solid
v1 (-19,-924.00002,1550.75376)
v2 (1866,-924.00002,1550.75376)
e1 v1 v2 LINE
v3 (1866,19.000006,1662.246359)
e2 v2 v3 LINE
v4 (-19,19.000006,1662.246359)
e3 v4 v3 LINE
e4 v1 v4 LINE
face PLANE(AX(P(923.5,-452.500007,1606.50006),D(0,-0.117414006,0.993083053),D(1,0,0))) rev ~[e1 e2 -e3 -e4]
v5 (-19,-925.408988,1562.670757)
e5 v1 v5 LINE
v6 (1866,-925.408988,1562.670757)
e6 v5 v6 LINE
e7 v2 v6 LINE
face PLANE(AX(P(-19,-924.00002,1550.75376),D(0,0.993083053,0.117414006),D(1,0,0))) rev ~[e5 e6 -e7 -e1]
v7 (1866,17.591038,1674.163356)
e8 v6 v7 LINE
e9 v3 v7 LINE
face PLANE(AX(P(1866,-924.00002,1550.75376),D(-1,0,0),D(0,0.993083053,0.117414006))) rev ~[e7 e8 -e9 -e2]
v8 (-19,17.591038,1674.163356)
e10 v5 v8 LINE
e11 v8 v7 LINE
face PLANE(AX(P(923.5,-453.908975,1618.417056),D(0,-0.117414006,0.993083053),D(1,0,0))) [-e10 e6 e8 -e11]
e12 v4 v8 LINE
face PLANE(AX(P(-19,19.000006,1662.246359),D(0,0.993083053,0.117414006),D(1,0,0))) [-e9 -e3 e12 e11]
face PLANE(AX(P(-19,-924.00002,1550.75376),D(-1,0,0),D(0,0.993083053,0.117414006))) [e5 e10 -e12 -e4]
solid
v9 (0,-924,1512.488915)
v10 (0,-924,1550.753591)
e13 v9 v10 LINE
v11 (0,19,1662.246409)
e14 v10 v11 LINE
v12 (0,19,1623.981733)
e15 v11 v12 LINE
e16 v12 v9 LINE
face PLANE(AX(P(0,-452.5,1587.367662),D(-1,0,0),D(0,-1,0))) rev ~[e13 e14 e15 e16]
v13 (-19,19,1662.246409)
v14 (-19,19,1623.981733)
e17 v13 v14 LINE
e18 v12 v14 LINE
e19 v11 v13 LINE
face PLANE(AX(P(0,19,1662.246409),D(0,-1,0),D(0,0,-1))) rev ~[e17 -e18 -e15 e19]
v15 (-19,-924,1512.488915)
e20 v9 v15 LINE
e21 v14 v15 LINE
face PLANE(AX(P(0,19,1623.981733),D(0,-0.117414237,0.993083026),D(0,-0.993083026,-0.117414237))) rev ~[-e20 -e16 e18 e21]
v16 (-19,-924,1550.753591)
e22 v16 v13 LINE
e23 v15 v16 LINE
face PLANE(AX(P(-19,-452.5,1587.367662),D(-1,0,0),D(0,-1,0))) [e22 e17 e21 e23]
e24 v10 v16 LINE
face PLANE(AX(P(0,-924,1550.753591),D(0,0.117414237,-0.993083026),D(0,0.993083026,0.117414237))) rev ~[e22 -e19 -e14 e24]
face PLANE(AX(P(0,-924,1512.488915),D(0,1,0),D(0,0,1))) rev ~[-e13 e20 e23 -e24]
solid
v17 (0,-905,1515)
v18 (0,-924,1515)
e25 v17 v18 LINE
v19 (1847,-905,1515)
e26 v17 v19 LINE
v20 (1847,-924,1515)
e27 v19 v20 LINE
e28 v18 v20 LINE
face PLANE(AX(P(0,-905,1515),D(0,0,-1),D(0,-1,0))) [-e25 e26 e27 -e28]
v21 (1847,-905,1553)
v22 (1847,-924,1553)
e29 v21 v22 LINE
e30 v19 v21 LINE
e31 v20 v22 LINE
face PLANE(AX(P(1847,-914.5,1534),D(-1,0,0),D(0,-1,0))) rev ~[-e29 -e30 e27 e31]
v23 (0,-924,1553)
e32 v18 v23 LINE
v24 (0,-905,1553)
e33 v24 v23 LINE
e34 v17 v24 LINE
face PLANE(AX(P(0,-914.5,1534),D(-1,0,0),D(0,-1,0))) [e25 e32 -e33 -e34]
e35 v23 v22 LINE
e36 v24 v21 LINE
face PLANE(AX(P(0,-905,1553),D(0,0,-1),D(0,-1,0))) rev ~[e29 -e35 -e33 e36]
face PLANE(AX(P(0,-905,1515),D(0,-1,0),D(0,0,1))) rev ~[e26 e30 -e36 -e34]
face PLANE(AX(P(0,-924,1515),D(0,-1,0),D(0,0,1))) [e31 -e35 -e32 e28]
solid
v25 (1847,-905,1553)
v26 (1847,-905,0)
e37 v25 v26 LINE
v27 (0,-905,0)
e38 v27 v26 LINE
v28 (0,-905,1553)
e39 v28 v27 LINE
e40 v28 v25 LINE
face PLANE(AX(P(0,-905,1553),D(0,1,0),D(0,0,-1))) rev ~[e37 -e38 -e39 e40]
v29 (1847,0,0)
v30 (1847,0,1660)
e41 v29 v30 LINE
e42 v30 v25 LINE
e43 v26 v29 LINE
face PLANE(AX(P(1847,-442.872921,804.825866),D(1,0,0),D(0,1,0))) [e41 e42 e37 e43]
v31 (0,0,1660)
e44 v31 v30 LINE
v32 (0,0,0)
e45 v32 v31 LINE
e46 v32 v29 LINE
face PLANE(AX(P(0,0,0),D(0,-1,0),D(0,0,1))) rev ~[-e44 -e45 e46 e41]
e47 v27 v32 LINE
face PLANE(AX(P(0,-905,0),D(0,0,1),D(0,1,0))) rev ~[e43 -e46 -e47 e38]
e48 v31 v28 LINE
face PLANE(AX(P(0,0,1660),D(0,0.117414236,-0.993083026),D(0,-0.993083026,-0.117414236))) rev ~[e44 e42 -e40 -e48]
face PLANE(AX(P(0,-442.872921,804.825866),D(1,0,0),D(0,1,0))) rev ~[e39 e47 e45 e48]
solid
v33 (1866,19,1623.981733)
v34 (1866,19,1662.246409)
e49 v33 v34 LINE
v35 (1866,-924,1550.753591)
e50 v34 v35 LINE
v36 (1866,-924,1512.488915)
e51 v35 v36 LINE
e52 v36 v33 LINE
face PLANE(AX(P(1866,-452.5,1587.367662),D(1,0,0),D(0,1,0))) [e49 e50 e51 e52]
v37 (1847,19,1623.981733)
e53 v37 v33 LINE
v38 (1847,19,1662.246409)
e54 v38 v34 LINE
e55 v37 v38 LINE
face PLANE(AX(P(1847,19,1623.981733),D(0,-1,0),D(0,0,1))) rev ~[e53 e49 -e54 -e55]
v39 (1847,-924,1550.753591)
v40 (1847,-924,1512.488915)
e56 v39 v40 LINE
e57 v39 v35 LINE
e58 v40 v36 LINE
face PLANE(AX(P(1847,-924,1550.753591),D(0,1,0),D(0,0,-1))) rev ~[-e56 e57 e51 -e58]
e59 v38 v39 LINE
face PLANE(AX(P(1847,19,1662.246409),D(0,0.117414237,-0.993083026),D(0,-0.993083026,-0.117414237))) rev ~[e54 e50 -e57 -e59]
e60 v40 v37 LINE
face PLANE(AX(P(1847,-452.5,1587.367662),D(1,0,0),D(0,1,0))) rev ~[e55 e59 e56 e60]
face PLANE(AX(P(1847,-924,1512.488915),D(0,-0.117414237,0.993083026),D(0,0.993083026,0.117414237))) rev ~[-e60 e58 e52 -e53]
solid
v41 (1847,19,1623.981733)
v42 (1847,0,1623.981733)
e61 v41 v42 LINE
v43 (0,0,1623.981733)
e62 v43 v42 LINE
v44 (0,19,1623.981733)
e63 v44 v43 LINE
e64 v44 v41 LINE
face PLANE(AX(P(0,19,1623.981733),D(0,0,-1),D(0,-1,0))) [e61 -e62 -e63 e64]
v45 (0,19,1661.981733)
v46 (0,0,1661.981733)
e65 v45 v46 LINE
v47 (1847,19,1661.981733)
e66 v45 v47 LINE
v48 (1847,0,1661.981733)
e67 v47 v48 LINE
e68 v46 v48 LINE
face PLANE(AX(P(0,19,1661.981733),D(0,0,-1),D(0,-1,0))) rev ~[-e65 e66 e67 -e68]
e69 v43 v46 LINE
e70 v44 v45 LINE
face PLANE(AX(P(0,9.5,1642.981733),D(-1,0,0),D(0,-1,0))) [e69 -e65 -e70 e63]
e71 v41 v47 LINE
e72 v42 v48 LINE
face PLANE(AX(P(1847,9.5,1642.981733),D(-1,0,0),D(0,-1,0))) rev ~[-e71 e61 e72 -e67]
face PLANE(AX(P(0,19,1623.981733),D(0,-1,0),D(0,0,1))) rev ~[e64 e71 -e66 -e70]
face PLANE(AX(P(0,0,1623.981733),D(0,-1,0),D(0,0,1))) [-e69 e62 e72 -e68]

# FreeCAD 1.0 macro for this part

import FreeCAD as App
import Part
import Sketcher
from FreeCAD import Vector


def add_polygon(sketch, points):
    """Adds a closed chain of lines whose ends are joined by coincident constraints."""
    first, n = sketch.GeometryCount, len(points)
    for a, b in zip(points, points[1:] + points[:1]):
        sketch.addGeometry(Part.LineSegment(App.Vector(*a, 0), App.Vector(*b, 0)), False)
    for i in range(n):
        sketch.addConstraint(Sketcher.Constraint("Coincident", first + i, 2, first + (i + 1) % n, 1))

doc = App.newDocument("Part")
body = doc.addObject("PartDesign::Body", "Body")

# Sketch on YZ plane
sketch1 = body.newObject("Sketcher::SketchObject", "Sketch")
sketch1.AttachmentSupport = (doc.getObject("YZ_Plane"), [""])
sketch1.MapMode = "FlatFace"
add_polygon(sketch1, [(-905, 0), (0, 0), (0, 1660), (-905, 1553)])  # lines 0-3
sketch1.addConstraint(Sketcher.Constraint("Horizontal", 0))
sketch1.addConstraint(Sketcher.Constraint("Vertical", 1))
sketch1.addConstraint(Sketcher.Constraint("Vertical", 3))
sketch1.addConstraint(Sketcher.Constraint("Coincident", 0, 2, -1, 1))
sketch1.addConstraint(Sketcher.Constraint("DistanceX", 0, 1, 0, 2, 905.0))
sketch1.addConstraint(Sketcher.Constraint("DistanceY", 1, 1, 1, 2, 1660.0))
sketch1.addConstraint(Sketcher.Constraint("DistanceY", 3, 2, 3, 1, 1553.0))
pad1 = body.newObject("PartDesign::Pad", "Pad")
pad1.Profile = sketch1
pad1.Length = 1847
body2 = doc.addObject("PartDesign::Body", "Body001")
body2.AllowCompound = True

# Sketch on YZ plane
sketch2 = body2.newObject("Sketcher::SketchObject", "Sketch001")
sketch2.AttachmentSupport = (doc.getObject("YZ_Plane001"), [""])
sketch2.MapMode = "FlatFace"
add_polygon(sketch2, [(-905, 1553), (-905, 1515), (-924, 1515), (-924, 1553)])  # lines 0-3
add_polygon(sketch2, [(19, 1662), (19, 1624), (0, 1624), (0, 1662)])  # lines 4-7
sketch2.addConstraint(Sketcher.Constraint("Vertical", 0))
sketch2.addConstraint(Sketcher.Constraint("Horizontal", 1))
sketch2.addConstraint(Sketcher.Constraint("Vertical", 2))
sketch2.addConstraint(Sketcher.Constraint("Horizontal", 3))
sketch2.addConstraint(Sketcher.Constraint("Vertical", 4))
sketch2.addConstraint(Sketcher.Constraint("Horizontal", 5))
sketch2.addConstraint(Sketcher.Constraint("Vertical", 6))
sketch2.addConstraint(Sketcher.Constraint("Horizontal", 7))
sketch2.addConstraint(Sketcher.Constraint("PointOnObject", 5, 2, -2))
sketch2.addConstraint(Sketcher.Constraint("Equal", 3, 5))
sketch2.addConstraint(Sketcher.Constraint("Equal", 2, 4))
sketch2.addConstraint(Sketcher.Constraint("DistanceX", 1, 2, 1, 1, 19.0))
sketch2.addConstraint(Sketcher.Constraint("DistanceY", 0, 2, 0, 1, 38.0))
sketch2.addConstraint(Sketcher.Constraint("DistanceX", 0, 2, -1, 1, 905.0))
sketch2.addConstraint(Sketcher.Constraint("DistanceY", -1, 1, 0, 2, 1515.0))
sketch2.addConstraint(Sketcher.Constraint("DistanceY", -1, 1, 4, 2, 1623.981733))
pad2 = body2.newObject("PartDesign::Pad", "Pad001")
pad2.Profile = sketch2
pad2.Length = 1847
body3 = doc.addObject("PartDesign::Body", "Body002")

# Sketch on YZ plane
sketch3 = body3.newObject("Sketcher::SketchObject", "Sketch002")
sketch3.AttachmentSupport = (doc.getObject("YZ_Plane002"), [""])
sketch3.MapMode = "FlatFace"
add_polygon(sketch3, [(-924, 1551), (19, 1662), (19, 1624), (-924, 1512)])  # lines 0-3
sketch3.addConstraint(Sketcher.Constraint("Vertical", 1))
sketch3.addConstraint(Sketcher.Constraint("Vertical", 3))
sketch3.addConstraint(Sketcher.Constraint("Parallel", 0, 2))
sketch3.addConstraint(Sketcher.Constraint("DistanceX", -1, 1, 0, 2, 19.0))
sketch3.addConstraint(Sketcher.Constraint("DistanceX", 2, 2, -1, 1, 924.0))
sketch3.addConstraint(Sketcher.Constraint("DistanceY", 1, 2, 1, 1, 38.264676))
sketch3.addConstraint(Sketcher.Constraint("DistanceY", -1, 1, 0, 2, 1662.246409))
sketch3.addConstraint(Sketcher.Constraint("DistanceY", -1, 1, 3, 2, 1550.753591))
pad3 = body3.newObject("PartDesign::Pad", "Pad002")
pad3.Profile = sketch3
pad3.Length = 19
pad3.Reversed = True
body4 = doc.addObject("PartDesign::Body", "Body003")

# Sketch on YZ plane
sketch4 = body4.newObject("Sketcher::SketchObject", "Sketch003")
sketch4.AttachmentSupport = (doc.getObject("YZ_Plane003"), [""])
sketch4.MapMode = "FlatFace"
sketch4.AttachmentOffset = App.Placement(Vector(0, 0, 1847), App.Rotation())
add_polygon(sketch4, [(-924, 1512), (19, 1624), (19, 1662), (-924, 1551)])  # lines 0-3
sketch4.addConstraint(Sketcher.Constraint("Vertical", 1))
sketch4.addConstraint(Sketcher.Constraint("Vertical", 3))
sketch4.addConstraint(Sketcher.Constraint("Parallel", 0, 2))
sketch4.addConstraint(Sketcher.Constraint("DistanceX", -1, 1, 0, 2, 19.0))
sketch4.addConstraint(Sketcher.Constraint("DistanceX", 2, 2, -1, 1, 924.0))
sketch4.addConstraint(Sketcher.Constraint("DistanceY", 1, 1, 1, 2, 38.264676))
sketch4.addConstraint(Sketcher.Constraint("DistanceY", -1, 1, 1, 2, 1662.246409))
sketch4.addConstraint(Sketcher.Constraint("DistanceY", -1, 1, 2, 2, 1550.753591))
pad4 = body4.newObject("PartDesign::Pad", "Pad003")
pad4.Profile = sketch4
pad4.Length = 19
body5 = doc.addObject("PartDesign::Body", "Body004")

# Sketch on an angled plane
sketch5 = body5.newObject("Sketcher::SketchObject", "Sketch004")
sketch5.Placement = App.Placement(Vector(0, -193.559461, 1637.115069), App.Rotation(Vector(1, 0, 0), Vector(0, 0.993083053, 0.117414006), Vector(0, -0.117414006, 0.993083053), "ZXY"))
add_polygon(sketch5, [(-19, 214), (-19, -736), (1866, -736), (1866, 214)])  # lines 0-3
sketch5.addConstraint(Sketcher.Constraint("Vertical", 0))
sketch5.addConstraint(Sketcher.Constraint("Horizontal", 1))
sketch5.addConstraint(Sketcher.Constraint("Vertical", 2))
sketch5.addConstraint(Sketcher.Constraint("Horizontal", 3))
sketch5.addConstraint(Sketcher.Constraint("DistanceX", 1, 1, 1, 2, 1885.0))
sketch5.addConstraint(Sketcher.Constraint("DistanceX", 0, 2, -1, 1, 19.0))
sketch5.addConstraint(Sketcher.Constraint("DistanceY", 0, 2, 0, 1, 949.568137))
sketch5.addConstraint(Sketcher.Constraint("DistanceY", -1, 1, 2, 2, 214.03997))
pad5 = body5.newObject("PartDesign::Pad", "Pad004")
pad5.Profile = sketch5
pad5.Length = 12

doc.recompute()
